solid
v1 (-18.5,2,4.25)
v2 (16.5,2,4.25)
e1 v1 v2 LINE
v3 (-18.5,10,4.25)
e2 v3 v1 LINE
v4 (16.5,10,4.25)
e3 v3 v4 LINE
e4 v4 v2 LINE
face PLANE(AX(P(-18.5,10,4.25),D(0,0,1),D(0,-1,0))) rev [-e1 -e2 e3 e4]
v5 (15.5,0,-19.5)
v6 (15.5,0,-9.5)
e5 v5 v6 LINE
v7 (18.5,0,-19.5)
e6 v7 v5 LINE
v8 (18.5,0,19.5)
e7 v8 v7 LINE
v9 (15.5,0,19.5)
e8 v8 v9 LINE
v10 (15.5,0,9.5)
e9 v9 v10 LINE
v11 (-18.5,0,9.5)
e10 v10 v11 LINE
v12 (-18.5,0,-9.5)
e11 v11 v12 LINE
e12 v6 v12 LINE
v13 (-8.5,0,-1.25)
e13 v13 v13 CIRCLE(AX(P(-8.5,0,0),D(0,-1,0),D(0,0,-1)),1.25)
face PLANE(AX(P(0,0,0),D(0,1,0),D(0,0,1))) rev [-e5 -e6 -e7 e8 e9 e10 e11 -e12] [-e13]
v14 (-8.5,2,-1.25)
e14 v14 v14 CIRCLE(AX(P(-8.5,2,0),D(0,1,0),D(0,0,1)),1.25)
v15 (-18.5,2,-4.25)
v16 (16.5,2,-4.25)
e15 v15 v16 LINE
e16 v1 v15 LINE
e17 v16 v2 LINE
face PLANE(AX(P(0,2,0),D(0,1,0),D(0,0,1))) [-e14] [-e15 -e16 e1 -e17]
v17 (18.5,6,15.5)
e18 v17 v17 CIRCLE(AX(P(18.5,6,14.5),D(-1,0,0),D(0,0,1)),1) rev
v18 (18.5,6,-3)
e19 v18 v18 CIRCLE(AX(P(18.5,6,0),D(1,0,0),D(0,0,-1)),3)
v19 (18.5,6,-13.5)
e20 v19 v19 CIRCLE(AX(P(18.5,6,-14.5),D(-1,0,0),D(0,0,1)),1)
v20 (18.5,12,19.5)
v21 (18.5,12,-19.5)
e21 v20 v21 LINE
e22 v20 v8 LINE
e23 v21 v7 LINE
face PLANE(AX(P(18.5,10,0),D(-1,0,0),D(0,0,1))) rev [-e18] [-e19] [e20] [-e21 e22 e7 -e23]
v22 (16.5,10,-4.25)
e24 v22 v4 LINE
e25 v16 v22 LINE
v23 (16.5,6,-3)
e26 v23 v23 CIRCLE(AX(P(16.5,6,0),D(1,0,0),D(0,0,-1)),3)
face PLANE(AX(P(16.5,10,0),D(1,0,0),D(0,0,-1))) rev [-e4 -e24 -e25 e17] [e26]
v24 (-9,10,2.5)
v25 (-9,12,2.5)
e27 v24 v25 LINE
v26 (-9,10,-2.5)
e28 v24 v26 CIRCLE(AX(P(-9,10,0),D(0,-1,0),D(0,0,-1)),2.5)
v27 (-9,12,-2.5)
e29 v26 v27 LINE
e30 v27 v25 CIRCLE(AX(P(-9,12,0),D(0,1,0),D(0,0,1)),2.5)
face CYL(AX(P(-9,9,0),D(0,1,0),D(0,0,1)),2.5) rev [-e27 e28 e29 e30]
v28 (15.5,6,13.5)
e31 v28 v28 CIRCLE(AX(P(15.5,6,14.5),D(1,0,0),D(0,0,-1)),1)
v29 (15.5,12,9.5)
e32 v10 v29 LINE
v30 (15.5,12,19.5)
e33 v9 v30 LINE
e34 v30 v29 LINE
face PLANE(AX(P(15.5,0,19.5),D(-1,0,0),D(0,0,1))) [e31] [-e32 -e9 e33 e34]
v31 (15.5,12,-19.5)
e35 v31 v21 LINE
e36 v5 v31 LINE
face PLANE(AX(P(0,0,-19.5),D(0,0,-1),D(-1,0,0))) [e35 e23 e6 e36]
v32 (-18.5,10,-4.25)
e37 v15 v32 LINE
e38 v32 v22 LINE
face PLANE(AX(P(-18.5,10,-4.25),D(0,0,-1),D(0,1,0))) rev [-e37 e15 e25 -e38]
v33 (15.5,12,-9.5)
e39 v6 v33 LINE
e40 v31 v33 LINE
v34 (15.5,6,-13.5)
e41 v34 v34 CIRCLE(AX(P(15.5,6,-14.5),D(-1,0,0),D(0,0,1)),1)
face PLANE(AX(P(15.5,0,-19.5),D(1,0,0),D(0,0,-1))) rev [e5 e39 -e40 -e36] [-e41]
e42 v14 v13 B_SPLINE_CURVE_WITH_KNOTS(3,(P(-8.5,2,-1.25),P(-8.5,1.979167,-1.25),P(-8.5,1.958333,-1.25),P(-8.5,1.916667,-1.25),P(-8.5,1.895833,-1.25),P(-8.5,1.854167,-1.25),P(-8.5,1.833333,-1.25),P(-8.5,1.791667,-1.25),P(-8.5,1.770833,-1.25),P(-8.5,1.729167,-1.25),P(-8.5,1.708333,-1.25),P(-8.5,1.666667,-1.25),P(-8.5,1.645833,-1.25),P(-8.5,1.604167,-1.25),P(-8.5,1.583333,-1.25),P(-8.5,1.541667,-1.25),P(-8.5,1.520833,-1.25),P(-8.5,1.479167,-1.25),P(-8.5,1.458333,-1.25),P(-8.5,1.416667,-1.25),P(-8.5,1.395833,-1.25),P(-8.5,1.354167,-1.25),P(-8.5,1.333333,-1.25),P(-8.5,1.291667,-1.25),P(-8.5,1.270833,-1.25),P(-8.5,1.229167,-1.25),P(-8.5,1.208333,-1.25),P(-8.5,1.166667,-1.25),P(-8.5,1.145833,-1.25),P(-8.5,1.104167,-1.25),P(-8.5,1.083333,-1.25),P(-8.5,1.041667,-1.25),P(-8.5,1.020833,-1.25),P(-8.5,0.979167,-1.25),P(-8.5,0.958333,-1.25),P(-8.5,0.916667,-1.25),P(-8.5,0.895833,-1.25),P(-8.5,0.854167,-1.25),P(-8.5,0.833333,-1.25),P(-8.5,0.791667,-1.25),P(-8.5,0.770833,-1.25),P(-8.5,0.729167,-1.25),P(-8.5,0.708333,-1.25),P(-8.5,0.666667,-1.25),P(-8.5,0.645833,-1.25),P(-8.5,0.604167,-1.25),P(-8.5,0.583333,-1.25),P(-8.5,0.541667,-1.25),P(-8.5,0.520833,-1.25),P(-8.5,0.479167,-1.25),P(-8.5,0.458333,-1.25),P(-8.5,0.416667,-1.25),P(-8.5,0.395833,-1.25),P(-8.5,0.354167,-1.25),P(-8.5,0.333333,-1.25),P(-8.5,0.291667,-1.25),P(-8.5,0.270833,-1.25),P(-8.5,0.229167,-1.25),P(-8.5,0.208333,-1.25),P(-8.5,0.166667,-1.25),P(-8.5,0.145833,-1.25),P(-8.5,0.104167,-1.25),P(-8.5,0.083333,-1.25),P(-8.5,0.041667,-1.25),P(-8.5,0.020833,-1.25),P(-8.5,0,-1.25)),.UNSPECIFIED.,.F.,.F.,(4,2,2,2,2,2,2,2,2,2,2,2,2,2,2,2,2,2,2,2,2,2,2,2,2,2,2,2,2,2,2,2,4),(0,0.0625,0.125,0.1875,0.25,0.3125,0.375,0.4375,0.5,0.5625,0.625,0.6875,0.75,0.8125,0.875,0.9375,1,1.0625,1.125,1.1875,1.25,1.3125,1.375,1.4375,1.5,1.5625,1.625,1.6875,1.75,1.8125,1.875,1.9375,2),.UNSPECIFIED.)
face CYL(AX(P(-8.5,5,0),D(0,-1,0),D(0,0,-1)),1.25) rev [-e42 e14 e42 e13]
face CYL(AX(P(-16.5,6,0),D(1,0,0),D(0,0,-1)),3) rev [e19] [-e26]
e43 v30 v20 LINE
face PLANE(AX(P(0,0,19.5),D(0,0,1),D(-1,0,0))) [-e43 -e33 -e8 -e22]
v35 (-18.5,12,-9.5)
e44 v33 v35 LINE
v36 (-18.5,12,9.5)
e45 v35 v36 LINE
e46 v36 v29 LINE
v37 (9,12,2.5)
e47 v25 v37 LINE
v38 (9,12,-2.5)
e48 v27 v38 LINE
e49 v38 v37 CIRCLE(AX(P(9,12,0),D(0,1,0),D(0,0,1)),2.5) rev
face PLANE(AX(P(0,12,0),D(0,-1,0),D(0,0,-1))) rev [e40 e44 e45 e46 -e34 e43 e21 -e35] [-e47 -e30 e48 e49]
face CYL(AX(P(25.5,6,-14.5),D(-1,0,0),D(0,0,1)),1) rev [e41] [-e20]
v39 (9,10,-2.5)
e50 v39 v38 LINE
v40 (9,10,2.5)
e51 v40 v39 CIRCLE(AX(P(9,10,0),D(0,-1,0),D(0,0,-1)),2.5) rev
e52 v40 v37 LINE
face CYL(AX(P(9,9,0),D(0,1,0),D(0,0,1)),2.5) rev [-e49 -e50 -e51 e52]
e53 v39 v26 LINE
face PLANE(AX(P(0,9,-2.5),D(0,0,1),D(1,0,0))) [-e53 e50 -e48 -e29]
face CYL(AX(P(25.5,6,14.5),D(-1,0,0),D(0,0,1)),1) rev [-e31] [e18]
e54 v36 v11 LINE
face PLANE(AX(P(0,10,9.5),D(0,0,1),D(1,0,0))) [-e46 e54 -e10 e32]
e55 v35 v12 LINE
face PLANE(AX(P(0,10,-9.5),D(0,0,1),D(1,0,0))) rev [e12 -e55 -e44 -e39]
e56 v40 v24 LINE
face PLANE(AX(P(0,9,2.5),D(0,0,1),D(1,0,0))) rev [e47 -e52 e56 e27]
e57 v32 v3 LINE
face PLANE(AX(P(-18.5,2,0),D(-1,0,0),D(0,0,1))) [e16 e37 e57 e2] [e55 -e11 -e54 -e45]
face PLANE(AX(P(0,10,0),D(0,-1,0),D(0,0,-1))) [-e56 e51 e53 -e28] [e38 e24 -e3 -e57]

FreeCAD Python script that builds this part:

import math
import FreeCAD as App
import Part
import Sketcher

V = App.Vector
Q = App.Units.Quantity


def add_polygon(sketch, points):
    """Adds a closed chain of lines whose ends are joined by coincident constraints."""
    first, n = sketch.GeometryCount, len(points)
    for a, b in zip(points, points[1:] + points[:1]):
        sketch.addGeometry(Part.LineSegment(App.Vector(*a, 0), App.Vector(*b, 0)), False)
    for i in range(n):
        sketch.addConstraint(Sketcher.Constraint("Coincident", first + i, 2, first + (i + 1) % n, 1))

doc = App.newDocument("Part")
body = doc.addObject("PartDesign::Body", "Body")

sketch1 = doc.addObject("Sketcher::SketchObject", "Sketch")
body.addObject(sketch1)
sketch1.AttachmentSupport = (doc.XZ_Plane, [""])
sketch1.MapMode = "FlatFace"
add_polygon(sketch1, [(16.5, 7.5), (16.5, -7.5), (-18.5, -7.5), (-18.5, 7.5)])
sketch1.addConstraint([
    Sketcher.Constraint("Vertical", 0),
    Sketcher.Constraint("Horizontal", 1),
    Sketcher.Constraint("Vertical", 2),
    Sketcher.Constraint("Horizontal", 3),
    Sketcher.Constraint("DistanceX", 1, 2, 1, 1, Q("35 mm")),
    Sketcher.Constraint("DistanceY", 0, 2, 0, 1, Q("15 mm")),
    Sketcher.Constraint("DistanceX", -1, 1, 0, 2, Q("16.5 mm")),
    Sketcher.Constraint("DistanceY", 0, 2, -1, 1, Q("7.5 mm")),
])
pad1 = doc.addObject("PartDesign::Pad", "Pad")
body.addObject(pad1)
pad1.Profile = sketch1
pad1.Length = 2
pad1.Reversed = True

sketch2 = doc.addObject("Sketcher::SketchObject", "Sketch001")
body.addObject(sketch2)
sketch2.AttachmentSupport = (doc.XZ_Plane, [""])
sketch2.MapMode = "FlatFace"
add_polygon(sketch2, [(16.5, 7.5), (-18.5, 7.5), (-18.5, 9.5), (18.5, 9.5), (18.5, -9.5), (-18.5, -9.5), (-18.5, -7.5), (16.5, -7.5)])
sketch2.addConstraint([
    Sketcher.Constraint("Horizontal", 0),
    Sketcher.Constraint("Vertical", 1),
    Sketcher.Constraint("Horizontal", 2),
    Sketcher.Constraint("Vertical", 3),
    Sketcher.Constraint("Horizontal", 4),
    Sketcher.Constraint("Vertical", 5),
    Sketcher.Constraint("Horizontal", 6),
    Sketcher.Constraint("Vertical", 7),
    Sketcher.Constraint("Symmetric", 1, 2, 3, 2, -1, 1),
    Sketcher.Constraint("Symmetric", 0, 2, 5, 2, -1),
    Sketcher.Constraint("DistanceX", 0, 2, 0, 1, Q("35 mm")),
    Sketcher.Constraint("DistanceX", 2, 1, 2, 2, Q("37 mm")),
    Sketcher.Constraint("DistanceY", 1, 1, 1, 2, Q("2 mm")),
    Sketcher.Constraint("DistanceY", 3, 2, 3, 1, Q("19 mm")),
])
pad2 = doc.addObject("PartDesign::Pad", "Pad001")
body.addObject(pad2)
pad2.Profile = sketch2
pad2.Length = 10
pad2.Reversed = True

sketch3 = doc.addObject("Sketcher::SketchObject", "Sketch002")
body.addObject(sketch3)
sketch3.AttachmentSupport = (doc.XZ_Plane, [""])
sketch3.MapMode = "FlatFace"
sketch3.AttachmentOffset = App.Placement(V(0, 0, -10), App.Rotation())
add_polygon(sketch3, [(-18.5, -9.5), (-18.5, 9.5), (18.5, 9.5), (18.5, -9.5)])
sketch3.addConstraint([
    Sketcher.Constraint("Vertical", 0),
    Sketcher.Constraint("Horizontal", 1),
    Sketcher.Constraint("Vertical", 2),
    Sketcher.Constraint("Horizontal", 3),
    Sketcher.Constraint("Symmetric", 0, 2, 2, 2, -1, 1),
    Sketcher.Constraint("DistanceX", 1, 1, 1, 2, Q("37 mm")),
    Sketcher.Constraint("DistanceY", 0, 1, 0, 2, Q("19 mm")),
])
pad3 = doc.addObject("PartDesign::Pad", "Pad002")
body.addObject(pad3)
pad3.Profile = sketch3
pad3.Length = 2
pad3.Reversed = True

sketch4 = doc.addObject("Sketcher::SketchObject", "Sketch003")
body.addObject(sketch4)
sketch4.AttachmentSupport = (doc.XZ_Plane, [""])
sketch4.MapMode = "FlatFace"
sketch4.AttachmentOffset = App.Placement(V(0, 0, -12), App.Rotation())
sketch4.addGeometry([
    Part.LineSegment(V(9, -2.5, 0), V(-9, -2.5, 0)),
    Part.ArcOfCircle(Part.Circle(V(-9, 0, 0), V(0, 0, 1), 2.5), math.radians(90), math.radians(270)),
    Part.LineSegment(V(-9, 2.5, 0), V(9, 2.5, 0)),
    Part.ArcOfCircle(Part.Circle(V(9, 0, 0), V(0, 0, 1), 2.5), math.radians(-90), math.radians(90)),
], False)
sketch4.addConstraint([
    Sketcher.Constraint("Tangent", 0, 2, 1, 2),
    Sketcher.Constraint("Tangent", 1, 1, 2, 1),
    Sketcher.Constraint("Tangent", 2, 2, 3, 2),
    Sketcher.Constraint("Tangent", 3, 1, 0, 1),
    Sketcher.Constraint("Horizontal", 0),
    Sketcher.Constraint("Horizontal", 2),
    Sketcher.Constraint("Symmetric", 1, 3, 3, 3, -1, 1),
    Sketcher.Constraint("Radius", 1, Q("2.5 mm")),
    Sketcher.Constraint("DistanceX", 0, 2, 0, 1, Q("18 mm")),
])
pocket1 = doc.addObject("PartDesign::Pocket", "Pocket")
body.addObject(pocket1)
pocket1.Profile = sketch4
pocket1.Length = 3
pocket1.Reversed = True

sketch5 = doc.addObject("Sketcher::SketchObject", "Sketch004")
body.addObject(sketch5)
sketch5.AttachmentSupport = (doc.XY_Plane, [""])
sketch5.MapMode = "FlatFace"
sketch5.AttachmentOffset = App.Placement(V(0, 0, -9.5), App.Rotation())
add_polygon(sketch5, [(18.5, 12), (18.5, 0), (15.5, 0), (15.5, 12)])
sketch5.addConstraint([
    Sketcher.Constraint("Vertical", 0),
    Sketcher.Constraint("Horizontal", 1),
    Sketcher.Constraint("Vertical", 2),
    Sketcher.Constraint("Horizontal", 3),
    Sketcher.Constraint("PointOnObject", 0, 2, -1),
    Sketcher.Constraint("DistanceX", 1, 2, 1, 1, Q("3 mm")),
    Sketcher.Constraint("DistanceY", 0, 2, 0, 1, Q("12 mm")),
    Sketcher.Constraint("DistanceX", -1, 1, 0, 2, Q("18.5 mm")),
])
pad4 = doc.addObject("PartDesign::Pad", "Pad003")
body.addObject(pad4)
pad4.Profile = sketch5
pad4.Length = 10
pad4.Reversed = True

sketch6 = doc.addObject("Sketcher::SketchObject", "Sketch005")
body.addObject(sketch6)
sketch6.AttachmentSupport = (doc.YZ_Plane, [""])
sketch6.MapMode = "FlatFace"
sketch6.AttachmentOffset = App.Placement(V(0, 0, 15.5), App.Rotation())
sketch6.addGeometry(Part.Circle(V(6, -14.5, 0), V(0, 0, 1), 1), False)
sketch6.addConstraint([
    Sketcher.Constraint("Diameter", 0, Q("2 mm")),
    Sketcher.Constraint("DistanceX", -1, 1, 0, 3, Q("6 mm")),
    Sketcher.Constraint("DistanceY", 0, 3, -1, 1, Q("14.5 mm")),
])
pocket2 = doc.addObject("PartDesign::Pocket", "Pocket001")
body.addObject(pocket2)
pocket2.Profile = sketch6
pocket2.Length = 10
pocket2.Reversed = True
doc.recompute()

mirrored = doc.addObject("PartDesign::Mirrored", "Mirrored")
body.addObject(mirrored)
mirrored.Originals = [pad4, pocket2]
mirrored.MirrorPlane = (doc.XY_Plane, [""])
body.Tip = mirrored

sketch7 = doc.addObject("Sketcher::SketchObject", "Sketch006")
body.addObject(sketch7)
sketch7.AttachmentSupport = (doc.YZ_Plane, [""])
sketch7.MapMode = "FlatFace"
sketch7.AttachmentOffset = App.Placement(V(0, 0, 16.5), App.Rotation())
add_polygon(sketch7, [(10, -7.5), (2, -7.5), (2, -4.25), (10, -4.25)])
add_polygon(sketch7, [(10, 4.25), (2, 4.25), (2, 7.5), (10, 7.5)])
sketch7.addConstraint([
    Sketcher.Constraint("Horizontal", 0),
    Sketcher.Constraint("Vertical", 1),
    Sketcher.Constraint("Horizontal", 2),
    Sketcher.Constraint("Vertical", 3),
    Sketcher.Constraint("Horizontal", 4),
    Sketcher.Constraint("Vertical", 5),
    Sketcher.Constraint("Horizontal", 6),
    Sketcher.Constraint("Vertical", 7),
    Sketcher.Constraint("Symmetric", 1, 2, 4, 2, -1),
    Sketcher.Constraint("Symmetric", 3, 2, 6, 2, -1),
    Sketcher.Constraint("DistanceX", 0, 2, 0, 1, Q("8 mm")),
    Sketcher.Constraint("DistanceX", -1, 1, 0, 2, Q("2 mm")),
    Sketcher.Constraint("DistanceY", 0, 2, 5, 2, Q("15 mm")),
    Sketcher.Constraint("DistanceY", 1, 1, 1, 2, Q("3.25 mm")),
])
pad5 = doc.addObject("PartDesign::Pad", "Pad004")
body.addObject(pad5)
pad5.Profile = sketch7
pad5.Length = 35
pad5.Reversed = True

sketch8 = doc.addObject("Sketcher::SketchObject", "Sketch007")
body.addObject(sketch8)
sketch8.AttachmentSupport = (doc.YZ_Plane, [""])
sketch8.MapMode = "FlatFace"
sketch8.AttachmentOffset = App.Placement(V(0, 0, 18.5), App.Rotation())
sketch8.addGeometry(Part.Circle(V(6, 0, 0), V(0, 0, 1), 3), False)
sketch8.addConstraint([
    Sketcher.Constraint("PointOnObject", 0, 3, -1),
    Sketcher.Constraint("Diameter", 0, Q("6 mm")),
    Sketcher.Constraint("DistanceX", -1, 1, 0, 3, Q("6 mm")),
])
pocket3 = doc.addObject("PartDesign::Pocket", "Pocket002")
body.addObject(pocket3)
pocket3.Profile = sketch8
pocket3.Length = 35

sketch9 = doc.addObject("Sketcher::SketchObject", "Sketch008")
body.addObject(sketch9)
sketch9.AttachmentSupport = (doc.XZ_Plane, [""])
sketch9.MapMode = "FlatFace"
sketch9.addGeometry(Part.Circle(V(-8.5, 0, 0), V(0, 0, 1), 1.25), False)
sketch9.addConstraint([
    Sketcher.Constraint("PointOnObject", 0, 3, -1),
    Sketcher.Constraint("Diameter", 0, Q("2.5 mm")),
    Sketcher.Constraint("DistanceX", 0, 3, -1, 1, Q("8.5 mm")),
])
pocket4 = doc.addObject("PartDesign::Pocket", "Pocket003")
body.addObject(pocket4)
pocket4.Profile = sketch9
pocket4.Length = 5

doc.recompute()
